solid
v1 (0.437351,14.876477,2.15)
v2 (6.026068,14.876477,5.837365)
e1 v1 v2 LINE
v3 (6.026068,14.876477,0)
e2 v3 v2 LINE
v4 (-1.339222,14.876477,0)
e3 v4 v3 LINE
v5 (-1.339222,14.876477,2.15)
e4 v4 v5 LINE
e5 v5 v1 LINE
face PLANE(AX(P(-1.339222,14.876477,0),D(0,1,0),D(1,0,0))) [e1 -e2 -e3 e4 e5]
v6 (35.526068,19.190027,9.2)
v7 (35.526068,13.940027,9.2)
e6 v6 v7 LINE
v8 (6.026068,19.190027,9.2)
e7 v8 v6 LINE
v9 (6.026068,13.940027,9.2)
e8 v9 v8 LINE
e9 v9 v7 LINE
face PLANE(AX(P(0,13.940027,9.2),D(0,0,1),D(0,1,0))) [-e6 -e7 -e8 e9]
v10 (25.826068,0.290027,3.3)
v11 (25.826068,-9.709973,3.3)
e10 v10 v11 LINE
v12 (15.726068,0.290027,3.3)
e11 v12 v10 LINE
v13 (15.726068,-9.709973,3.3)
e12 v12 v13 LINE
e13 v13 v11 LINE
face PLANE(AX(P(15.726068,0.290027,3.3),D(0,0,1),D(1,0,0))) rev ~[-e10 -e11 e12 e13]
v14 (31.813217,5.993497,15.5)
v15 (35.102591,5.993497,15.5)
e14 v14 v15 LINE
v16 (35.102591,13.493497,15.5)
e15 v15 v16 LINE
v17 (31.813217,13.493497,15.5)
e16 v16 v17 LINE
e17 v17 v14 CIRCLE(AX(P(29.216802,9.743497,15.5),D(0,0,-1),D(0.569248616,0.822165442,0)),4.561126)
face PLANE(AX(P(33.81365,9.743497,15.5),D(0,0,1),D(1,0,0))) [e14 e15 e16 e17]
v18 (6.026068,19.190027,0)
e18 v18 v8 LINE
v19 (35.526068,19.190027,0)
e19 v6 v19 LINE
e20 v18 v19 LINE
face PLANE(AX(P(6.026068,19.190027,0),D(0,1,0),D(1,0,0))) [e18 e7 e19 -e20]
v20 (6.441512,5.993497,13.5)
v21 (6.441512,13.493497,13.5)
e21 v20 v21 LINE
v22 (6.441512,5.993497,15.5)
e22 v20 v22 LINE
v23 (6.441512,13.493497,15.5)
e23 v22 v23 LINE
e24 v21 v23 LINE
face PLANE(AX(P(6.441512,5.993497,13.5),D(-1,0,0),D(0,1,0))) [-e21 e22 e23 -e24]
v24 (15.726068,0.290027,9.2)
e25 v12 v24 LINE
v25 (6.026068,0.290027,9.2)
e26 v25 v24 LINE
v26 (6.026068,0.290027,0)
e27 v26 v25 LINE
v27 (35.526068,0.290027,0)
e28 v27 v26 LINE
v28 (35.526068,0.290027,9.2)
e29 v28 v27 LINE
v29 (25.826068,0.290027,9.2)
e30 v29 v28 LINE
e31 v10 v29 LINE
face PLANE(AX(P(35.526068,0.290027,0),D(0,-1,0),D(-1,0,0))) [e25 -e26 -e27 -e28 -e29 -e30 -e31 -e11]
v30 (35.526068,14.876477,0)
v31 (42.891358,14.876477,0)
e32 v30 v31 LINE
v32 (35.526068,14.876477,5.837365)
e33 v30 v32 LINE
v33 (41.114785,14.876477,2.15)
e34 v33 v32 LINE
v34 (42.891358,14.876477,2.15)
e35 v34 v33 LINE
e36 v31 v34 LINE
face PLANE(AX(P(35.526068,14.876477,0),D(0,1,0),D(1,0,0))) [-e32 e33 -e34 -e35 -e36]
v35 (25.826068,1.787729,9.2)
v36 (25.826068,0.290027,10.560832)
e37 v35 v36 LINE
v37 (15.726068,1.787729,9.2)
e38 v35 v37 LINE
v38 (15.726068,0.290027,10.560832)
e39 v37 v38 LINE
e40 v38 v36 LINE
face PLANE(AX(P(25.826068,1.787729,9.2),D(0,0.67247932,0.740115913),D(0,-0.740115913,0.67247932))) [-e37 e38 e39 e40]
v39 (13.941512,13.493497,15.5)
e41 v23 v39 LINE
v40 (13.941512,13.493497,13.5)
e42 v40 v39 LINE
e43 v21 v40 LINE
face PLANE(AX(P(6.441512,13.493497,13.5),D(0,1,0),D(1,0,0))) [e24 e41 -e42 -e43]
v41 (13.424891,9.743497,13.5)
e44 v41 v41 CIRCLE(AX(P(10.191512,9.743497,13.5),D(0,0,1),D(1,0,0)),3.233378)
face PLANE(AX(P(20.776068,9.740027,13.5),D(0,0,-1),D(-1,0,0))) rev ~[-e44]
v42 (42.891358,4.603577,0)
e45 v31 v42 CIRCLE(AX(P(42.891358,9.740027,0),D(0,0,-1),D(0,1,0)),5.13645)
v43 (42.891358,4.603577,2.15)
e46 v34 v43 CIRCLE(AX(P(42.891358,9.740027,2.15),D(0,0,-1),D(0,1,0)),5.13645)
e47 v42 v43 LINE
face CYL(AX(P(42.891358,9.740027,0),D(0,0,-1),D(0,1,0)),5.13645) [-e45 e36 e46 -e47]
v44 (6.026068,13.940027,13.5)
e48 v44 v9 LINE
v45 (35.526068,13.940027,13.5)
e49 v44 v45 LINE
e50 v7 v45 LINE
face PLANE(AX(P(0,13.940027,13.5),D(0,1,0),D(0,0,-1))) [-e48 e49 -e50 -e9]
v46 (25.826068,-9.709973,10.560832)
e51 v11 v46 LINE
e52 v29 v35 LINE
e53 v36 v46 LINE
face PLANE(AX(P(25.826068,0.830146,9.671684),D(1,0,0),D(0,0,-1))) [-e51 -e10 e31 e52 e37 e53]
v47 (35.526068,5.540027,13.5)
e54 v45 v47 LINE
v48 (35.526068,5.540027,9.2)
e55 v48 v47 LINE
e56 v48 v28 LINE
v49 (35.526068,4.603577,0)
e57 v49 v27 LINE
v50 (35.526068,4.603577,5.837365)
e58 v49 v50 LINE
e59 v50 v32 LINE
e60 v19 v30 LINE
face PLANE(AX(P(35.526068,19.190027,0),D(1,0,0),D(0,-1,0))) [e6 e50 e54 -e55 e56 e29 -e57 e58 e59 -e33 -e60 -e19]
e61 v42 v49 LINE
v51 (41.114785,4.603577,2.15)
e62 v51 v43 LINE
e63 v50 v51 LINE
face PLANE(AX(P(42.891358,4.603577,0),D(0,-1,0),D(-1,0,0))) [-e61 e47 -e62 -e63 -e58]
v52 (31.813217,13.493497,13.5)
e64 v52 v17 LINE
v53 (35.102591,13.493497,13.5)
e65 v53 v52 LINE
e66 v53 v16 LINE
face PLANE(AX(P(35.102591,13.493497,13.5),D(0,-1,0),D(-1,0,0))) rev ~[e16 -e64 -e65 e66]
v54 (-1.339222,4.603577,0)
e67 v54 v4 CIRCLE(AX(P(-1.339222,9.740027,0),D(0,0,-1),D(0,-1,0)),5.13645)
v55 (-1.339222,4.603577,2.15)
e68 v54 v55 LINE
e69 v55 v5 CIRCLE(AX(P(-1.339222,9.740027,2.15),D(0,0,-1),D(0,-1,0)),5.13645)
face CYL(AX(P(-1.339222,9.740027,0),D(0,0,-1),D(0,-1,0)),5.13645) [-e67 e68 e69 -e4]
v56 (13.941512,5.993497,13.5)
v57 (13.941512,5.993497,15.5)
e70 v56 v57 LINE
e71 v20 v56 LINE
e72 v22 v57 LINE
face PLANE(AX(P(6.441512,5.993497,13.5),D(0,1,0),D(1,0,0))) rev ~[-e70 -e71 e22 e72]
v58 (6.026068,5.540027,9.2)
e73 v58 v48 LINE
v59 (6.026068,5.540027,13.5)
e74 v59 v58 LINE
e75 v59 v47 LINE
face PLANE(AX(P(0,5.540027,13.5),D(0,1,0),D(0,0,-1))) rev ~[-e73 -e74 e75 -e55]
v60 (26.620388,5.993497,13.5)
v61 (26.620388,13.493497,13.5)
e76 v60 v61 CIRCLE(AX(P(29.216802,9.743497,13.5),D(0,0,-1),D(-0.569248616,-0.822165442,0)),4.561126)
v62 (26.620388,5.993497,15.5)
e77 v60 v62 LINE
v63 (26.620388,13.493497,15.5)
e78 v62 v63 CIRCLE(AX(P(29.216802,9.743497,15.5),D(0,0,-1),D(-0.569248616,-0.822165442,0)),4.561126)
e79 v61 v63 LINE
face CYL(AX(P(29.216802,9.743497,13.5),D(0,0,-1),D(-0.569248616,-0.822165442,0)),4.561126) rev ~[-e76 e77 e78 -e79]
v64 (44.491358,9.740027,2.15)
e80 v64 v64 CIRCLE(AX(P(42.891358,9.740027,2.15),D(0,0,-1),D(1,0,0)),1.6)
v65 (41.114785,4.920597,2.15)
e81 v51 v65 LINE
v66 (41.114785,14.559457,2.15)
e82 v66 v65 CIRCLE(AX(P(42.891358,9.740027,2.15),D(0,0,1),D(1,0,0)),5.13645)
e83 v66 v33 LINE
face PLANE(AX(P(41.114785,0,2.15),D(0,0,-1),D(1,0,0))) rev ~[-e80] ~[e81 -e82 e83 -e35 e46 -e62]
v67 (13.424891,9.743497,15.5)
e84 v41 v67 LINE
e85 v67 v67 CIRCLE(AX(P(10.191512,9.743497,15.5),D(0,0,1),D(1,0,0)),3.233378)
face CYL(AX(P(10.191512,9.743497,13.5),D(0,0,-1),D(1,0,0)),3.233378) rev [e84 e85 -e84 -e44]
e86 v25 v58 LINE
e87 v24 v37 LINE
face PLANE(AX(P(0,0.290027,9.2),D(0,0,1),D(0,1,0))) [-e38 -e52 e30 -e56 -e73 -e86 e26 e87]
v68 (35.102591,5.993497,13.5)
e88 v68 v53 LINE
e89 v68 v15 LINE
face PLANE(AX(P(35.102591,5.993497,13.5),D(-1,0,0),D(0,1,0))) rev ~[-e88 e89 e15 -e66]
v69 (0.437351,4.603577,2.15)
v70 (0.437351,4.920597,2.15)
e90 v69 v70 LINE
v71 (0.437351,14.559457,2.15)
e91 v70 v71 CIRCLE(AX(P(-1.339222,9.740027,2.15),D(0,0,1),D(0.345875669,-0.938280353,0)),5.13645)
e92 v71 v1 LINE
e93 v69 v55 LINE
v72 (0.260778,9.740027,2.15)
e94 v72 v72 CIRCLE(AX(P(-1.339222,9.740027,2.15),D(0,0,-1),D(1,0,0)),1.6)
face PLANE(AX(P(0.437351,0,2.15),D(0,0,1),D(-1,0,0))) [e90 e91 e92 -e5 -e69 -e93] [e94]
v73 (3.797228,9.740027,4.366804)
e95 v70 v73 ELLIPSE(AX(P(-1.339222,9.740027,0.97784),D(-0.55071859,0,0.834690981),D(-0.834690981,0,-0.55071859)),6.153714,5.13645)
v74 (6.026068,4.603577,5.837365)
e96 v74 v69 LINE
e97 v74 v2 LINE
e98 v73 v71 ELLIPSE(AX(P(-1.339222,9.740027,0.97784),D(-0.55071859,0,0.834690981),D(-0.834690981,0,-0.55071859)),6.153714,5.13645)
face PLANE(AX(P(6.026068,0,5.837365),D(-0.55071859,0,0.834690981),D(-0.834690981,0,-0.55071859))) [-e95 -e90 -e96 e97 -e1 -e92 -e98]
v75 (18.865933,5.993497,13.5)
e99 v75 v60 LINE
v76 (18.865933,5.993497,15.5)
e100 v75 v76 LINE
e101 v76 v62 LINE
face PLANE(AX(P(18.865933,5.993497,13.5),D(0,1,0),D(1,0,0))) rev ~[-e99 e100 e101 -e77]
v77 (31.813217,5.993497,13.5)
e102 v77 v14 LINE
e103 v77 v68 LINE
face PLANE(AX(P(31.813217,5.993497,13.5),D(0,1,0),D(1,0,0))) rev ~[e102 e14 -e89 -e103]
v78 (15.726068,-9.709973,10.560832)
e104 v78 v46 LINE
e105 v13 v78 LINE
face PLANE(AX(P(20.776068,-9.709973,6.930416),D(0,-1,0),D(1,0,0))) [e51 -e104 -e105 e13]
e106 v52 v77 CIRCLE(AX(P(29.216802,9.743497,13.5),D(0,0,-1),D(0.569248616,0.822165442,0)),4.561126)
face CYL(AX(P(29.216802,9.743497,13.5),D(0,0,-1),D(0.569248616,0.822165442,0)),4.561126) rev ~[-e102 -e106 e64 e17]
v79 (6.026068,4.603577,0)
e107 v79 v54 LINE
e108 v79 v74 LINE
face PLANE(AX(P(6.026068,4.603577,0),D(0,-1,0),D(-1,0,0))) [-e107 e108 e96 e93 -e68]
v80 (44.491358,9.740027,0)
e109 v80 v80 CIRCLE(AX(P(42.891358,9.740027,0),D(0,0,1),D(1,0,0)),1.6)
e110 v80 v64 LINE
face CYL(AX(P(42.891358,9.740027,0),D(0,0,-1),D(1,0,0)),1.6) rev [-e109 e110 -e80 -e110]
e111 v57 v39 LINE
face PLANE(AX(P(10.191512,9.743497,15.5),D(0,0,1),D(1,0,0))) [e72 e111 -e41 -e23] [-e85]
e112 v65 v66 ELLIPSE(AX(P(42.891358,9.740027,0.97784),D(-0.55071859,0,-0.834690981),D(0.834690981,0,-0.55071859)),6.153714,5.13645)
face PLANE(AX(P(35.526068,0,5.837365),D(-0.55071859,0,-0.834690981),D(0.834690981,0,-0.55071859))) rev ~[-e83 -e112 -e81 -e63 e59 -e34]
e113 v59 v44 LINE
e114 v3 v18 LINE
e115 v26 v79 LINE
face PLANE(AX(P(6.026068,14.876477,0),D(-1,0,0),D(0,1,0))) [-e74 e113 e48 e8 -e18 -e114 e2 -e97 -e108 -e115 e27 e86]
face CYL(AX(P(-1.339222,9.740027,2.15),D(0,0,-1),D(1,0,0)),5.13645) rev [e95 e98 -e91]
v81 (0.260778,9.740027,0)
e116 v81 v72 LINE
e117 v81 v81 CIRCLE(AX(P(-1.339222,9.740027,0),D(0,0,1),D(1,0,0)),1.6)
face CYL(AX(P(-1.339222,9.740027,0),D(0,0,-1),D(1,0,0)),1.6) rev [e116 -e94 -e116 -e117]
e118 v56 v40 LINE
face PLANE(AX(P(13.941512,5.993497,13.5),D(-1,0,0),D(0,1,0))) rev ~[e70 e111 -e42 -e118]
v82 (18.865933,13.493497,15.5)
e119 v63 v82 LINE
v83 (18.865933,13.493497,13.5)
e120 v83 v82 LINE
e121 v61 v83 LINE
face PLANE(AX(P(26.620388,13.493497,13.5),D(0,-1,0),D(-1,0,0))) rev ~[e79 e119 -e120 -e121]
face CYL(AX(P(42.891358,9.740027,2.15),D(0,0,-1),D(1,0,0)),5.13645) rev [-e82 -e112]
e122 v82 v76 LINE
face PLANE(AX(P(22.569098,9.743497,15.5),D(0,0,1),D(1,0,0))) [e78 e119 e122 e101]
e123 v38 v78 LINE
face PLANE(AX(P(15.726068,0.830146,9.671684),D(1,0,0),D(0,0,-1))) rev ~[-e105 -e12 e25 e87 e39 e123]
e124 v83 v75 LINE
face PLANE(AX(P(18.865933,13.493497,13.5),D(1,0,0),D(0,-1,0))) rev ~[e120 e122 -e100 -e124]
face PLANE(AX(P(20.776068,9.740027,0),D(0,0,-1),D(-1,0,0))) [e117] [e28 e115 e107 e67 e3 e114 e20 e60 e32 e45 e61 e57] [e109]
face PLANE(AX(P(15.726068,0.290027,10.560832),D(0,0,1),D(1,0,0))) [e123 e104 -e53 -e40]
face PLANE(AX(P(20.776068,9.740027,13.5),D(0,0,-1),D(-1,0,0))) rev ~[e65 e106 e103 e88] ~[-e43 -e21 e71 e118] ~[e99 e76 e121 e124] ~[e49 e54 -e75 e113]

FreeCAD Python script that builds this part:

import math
import FreeCAD as App
import Part
import Sketcher
Q = App.Units.Quantity

doc = App.newDocument("Part")
params = doc.addObject("Spreadsheet::Sheet", "Params")
for row, (alias, value) in enumerate([
    ("sketch1_diameter", "3.2 mm"),
    ("sketch1_width", "29.5 mm"),
    ("pad1_length", "13.5 mm"),
    ("sketch2_height", "2.15 mm"),
    ("sketch3_height", "4.3 mm"),
    ("sketch3_width", "5.25 mm"),
    ("sketch4_width", "7.5 mm"),
    ("pad2_length", "2 mm"),
    ("pocket3_length", "7.05 mm"),
    ("sketch6_width", "10.1 mm"),
    ("pad3_length", "10 mm"),
    ("pad4_length", "10.1 mm"),
], start=1):
    params.set(f"A{row}", alias)
    params.set(f"B{row}", "=" + value)
    params.setAlias(f"B{row}", alias)

body = doc.addObject("PartDesign::Body", "Body")

# Sketch on XY plane
sketch1 = doc.addObject("Sketcher::SketchObject", "Sketch")
body.addObject(sketch1)
sketch1.AttachmentSupport = (doc.XY_Plane, [""])
sketch1.MapMode = "FlatFace"
sketch1.addGeometry(Part.LineSegment(App.Vector(35.526068, 19.190027, 0), App.Vector(6.026068, 19.190027, 0)), False)
sketch1.addGeometry(Part.LineSegment(App.Vector(6.026068, 19.190027, 0), App.Vector(6.026068, 14.876477, 0)), False)
sketch1.addGeometry(Part.LineSegment(App.Vector(6.026068, 14.876477, 0), App.Vector(-1.339222, 14.876477, 0)), False)
sketch1.addGeometry(Part.ArcOfCircle(Part.Circle(App.Vector(-1.339222, 9.740027, 0), App.Vector(0, 0, 1), 5.13645), math.radians(90), math.radians(270)), False)
sketch1.addGeometry(Part.LineSegment(App.Vector(-1.339222, 4.603577, 0), App.Vector(6.026068, 4.603577, 0)), False)
sketch1.addGeometry(Part.LineSegment(App.Vector(6.026068, 4.603577, 0), App.Vector(6.026068, 0.290027, 0)), False)
sketch1.addGeometry(Part.LineSegment(App.Vector(6.026068, 0.290027, 0), App.Vector(35.526068, 0.290027, 0)), False)
sketch1.addGeometry(Part.LineSegment(App.Vector(35.526068, 0.290027, 0), App.Vector(35.526068, 4.603577, 0)), False)
sketch1.addGeometry(Part.LineSegment(App.Vector(35.526068, 4.603577, 0), App.Vector(42.891358, 4.603577, 0)), False)
sketch1.addGeometry(Part.ArcOfCircle(Part.Circle(App.Vector(42.891358, 9.740027, 0), App.Vector(0, 0, 1), 5.13645), math.radians(-90), math.radians(90)), False)
sketch1.addGeometry(Part.LineSegment(App.Vector(42.891358, 14.876477, 0), App.Vector(35.526068, 14.876477, 0)), False)
sketch1.addGeometry(Part.LineSegment(App.Vector(35.526068, 14.876477, 0), App.Vector(35.526068, 19.190027, 0)), False)
sketch1.addGeometry(Part.Circle(App.Vector(42.891358, 9.740027, 0), App.Vector(0, 0, 1), 1.6), False)
sketch1.addGeometry(Part.Circle(App.Vector(-1.339222, 9.740027, 0), App.Vector(0, 0, 1), 1.6), False)
sketch1.addConstraint(Sketcher.Constraint("Coincident", 0, 2, 1, 1))
sketch1.addConstraint(Sketcher.Constraint("Coincident", 1, 2, 2, 1))
sketch1.addConstraint(Sketcher.Constraint("Tangent", 2, 2, 3, 1))
sketch1.addConstraint(Sketcher.Constraint("Tangent", 3, 2, 4, 1))
sketch1.addConstraint(Sketcher.Constraint("Coincident", 4, 2, 5, 1))
sketch1.addConstraint(Sketcher.Constraint("Coincident", 5, 2, 6, 1))
sketch1.addConstraint(Sketcher.Constraint("Coincident", 6, 2, 7, 1))
sketch1.addConstraint(Sketcher.Constraint("Coincident", 7, 2, 8, 1))
sketch1.addConstraint(Sketcher.Constraint("Tangent", 8, 2, 9, 1))
sketch1.addConstraint(Sketcher.Constraint("Tangent", 9, 2, 10, 1))
sketch1.addConstraint(Sketcher.Constraint("Coincident", 10, 2, 11, 1))
sketch1.addConstraint(Sketcher.Constraint("Coincident", 11, 2, 0, 1))
sketch1.addConstraint(Sketcher.Constraint("Horizontal", 0))
sketch1.addConstraint(Sketcher.Constraint("Vertical", 1))
sketch1.addConstraint(Sketcher.Constraint("Horizontal", 2))
sketch1.addConstraint(Sketcher.Constraint("Horizontal", 4))
sketch1.addConstraint(Sketcher.Constraint("Vertical", 5))
sketch1.addConstraint(Sketcher.Constraint("Horizontal", 6))
sketch1.addConstraint(Sketcher.Constraint("Vertical", 7))
sketch1.addConstraint(Sketcher.Constraint("Horizontal", 8))
sketch1.addConstraint(Sketcher.Constraint("Horizontal", 10))
sketch1.addConstraint(Sketcher.Constraint("Vertical", 11))
sketch1.addConstraint(Sketcher.Constraint("Coincident", 12, 3, 9, 3))
sketch1.addConstraint(Sketcher.Constraint("Coincident", 13, 3, 3, 3))
sketch1.addConstraint(Sketcher.Constraint("Equal", 3, 9))
sketch1.addConstraint(Sketcher.Constraint("Equal", 12, 13))
sketch1.addConstraint(Sketcher.Constraint("Horizontal", 3, 3, 9, 3))
sketch1.addConstraint(Sketcher.Constraint("Vertical", 1, 2, 4, 2))
sketch1.addConstraint(Sketcher.Constraint("Vertical", 7, 2, 10, 2))
sketch1.addConstraint(Sketcher.Constraint("Equal", 4, 8))
sketch1.addConstraint(Sketcher.Constraint("Equal", 1, 5))
sketch1.addConstraint(Sketcher.Constraint("Diameter", 12, Q("3.2 mm")))
sketch1.addConstraint(Sketcher.Constraint("DistanceX", 0, 2, 0, 1, Q("29.5 mm")))
sketch1.addConstraint(Sketcher.Constraint("Radius", 3, Q("5.13645 mm")))
sketch1.addConstraint(Sketcher.Constraint("DistanceY", 3, 3, 0, 2, Q("9.45 mm")))
sketch1.addConstraint(Sketcher.Constraint("DistanceX", 2, 2, 2, 1, Q("7.36529 mm")))
sketch1.addConstraint(Sketcher.Constraint("DistanceX", -1, 1, 9, 3, Q("42.891358 mm")))
sketch1.addConstraint(Sketcher.Constraint("DistanceY", -1, 1, 3, 3, Q("9.740027 mm")))
sketch1.setExpression("Constraints[31]", "Params.sketch1_diameter")
sketch1.setExpression("Constraints[32]", "Params.sketch1_width")
pad1 = doc.addObject("PartDesign::Pad", "Pad")
body.addObject(pad1)
pad1.Profile = sketch1
pad1.setExpression("Length", "Params.pad1_length")

# Sketch on XZ plane
sketch2 = doc.addObject("Sketcher::SketchObject", "Sketch001")
body.addObject(sketch2)
sketch2.AttachmentSupport = (doc.XZ_Plane, [""])
sketch2.MapMode = "FlatFace"
sketch2.addGeometry(Part.LineSegment(App.Vector(-6.475672, 2.15, 0), App.Vector(-6.475672, 0, 0)), False)
sketch2.addGeometry(Part.LineSegment(App.Vector(-6.475672, 0, 0), App.Vector(-10.044911, 0, 0)), False)
sketch2.addGeometry(Part.LineSegment(App.Vector(-10.044911, 0, 0), App.Vector(-10.044911, 17.049735, 0)), False)
sketch2.addGeometry(Part.LineSegment(App.Vector(-10.044911, 17.049735, 0), App.Vector(6.026068, 17.049735, 0)), False)
sketch2.addGeometry(Part.LineSegment(App.Vector(6.026068, 17.049735, 0), App.Vector(6.026068, 5.837365, 0)), False)
sketch2.addGeometry(Part.LineSegment(App.Vector(6.026068, 5.837365, 0), App.Vector(0.437351, 2.15, 0)), False)
sketch2.addGeometry(Part.LineSegment(App.Vector(0.437351, 2.15, 0), App.Vector(-6.475672, 2.15, 0)), False)
sketch2.addGeometry(Part.LineSegment(App.Vector(51.597047, 0, 0), App.Vector(48.027808, 0, 0)), False)
sketch2.addGeometry(Part.LineSegment(App.Vector(48.027808, 0, 0), App.Vector(48.027808, 2.15, 0)), False)
sketch2.addGeometry(Part.LineSegment(App.Vector(48.027808, 2.15, 0), App.Vector(41.114785, 2.15, 0)), False)
sketch2.addGeometry(Part.LineSegment(App.Vector(41.114785, 2.15, 0), App.Vector(35.526068, 5.837365, 0)), False)
sketch2.addGeometry(Part.LineSegment(App.Vector(35.526068, 5.837365, 0), App.Vector(35.526068, 17.049735, 0)), False)
sketch2.addGeometry(Part.LineSegment(App.Vector(35.526068, 17.049735, 0), App.Vector(51.597047, 17.049735, 0)), False)
sketch2.addGeometry(Part.LineSegment(App.Vector(51.597047, 17.049735, 0), App.Vector(51.597047, 0, 0)), False)
sketch2.addConstraint(Sketcher.Constraint("Coincident", 0, 2, 1, 1))
sketch2.addConstraint(Sketcher.Constraint("Coincident", 1, 2, 2, 1))
sketch2.addConstraint(Sketcher.Constraint("Coincident", 2, 2, 3, 1))
sketch2.addConstraint(Sketcher.Constraint("Coincident", 3, 2, 4, 1))
sketch2.addConstraint(Sketcher.Constraint("Coincident", 4, 2, 5, 1))
sketch2.addConstraint(Sketcher.Constraint("Coincident", 5, 2, 6, 1))
sketch2.addConstraint(Sketcher.Constraint("Coincident", 6, 2, 0, 1))
sketch2.addConstraint(Sketcher.Constraint("Coincident", 7, 2, 8, 1))
sketch2.addConstraint(Sketcher.Constraint("Coincident", 8, 2, 9, 1))
sketch2.addConstraint(Sketcher.Constraint("Coincident", 9, 2, 10, 1))
sketch2.addConstraint(Sketcher.Constraint("Coincident", 10, 2, 11, 1))
sketch2.addConstraint(Sketcher.Constraint("Coincident", 11, 2, 12, 1))
sketch2.addConstraint(Sketcher.Constraint("Coincident", 12, 2, 13, 1))
sketch2.addConstraint(Sketcher.Constraint("Coincident", 13, 2, 7, 1))
sketch2.addConstraint(Sketcher.Constraint("Vertical", 0))
sketch2.addConstraint(Sketcher.Constraint("Horizontal", 1))
sketch2.addConstraint(Sketcher.Constraint("Vertical", 2))
sketch2.addConstraint(Sketcher.Constraint("Horizontal", 3))
sketch2.addConstraint(Sketcher.Constraint("Vertical", 4))
sketch2.addConstraint(Sketcher.Constraint("Horizontal", 6))
sketch2.addConstraint(Sketcher.Constraint("Horizontal", 7))
sketch2.addConstraint(Sketcher.Constraint("Vertical", 8))
sketch2.addConstraint(Sketcher.Constraint("Horizontal", 9))
sketch2.addConstraint(Sketcher.Constraint("Vertical", 11))
sketch2.addConstraint(Sketcher.Constraint("Horizontal", 12))
sketch2.addConstraint(Sketcher.Constraint("Vertical", 13))
sketch2.addConstraint(Sketcher.Constraint("PointOnObject", 0, 2, -1))
sketch2.addConstraint(Sketcher.Constraint("PointOnObject", 7, 2, -1))
sketch2.addConstraint(Sketcher.Constraint("Horizontal", 6, 2, 8, 2))
sketch2.addConstraint(Sketcher.Constraint("Horizontal", 4, 2, 10, 2))
sketch2.addConstraint(Sketcher.Constraint("Horizontal", 3, 2, 11, 2))
sketch2.addConstraint(Sketcher.Constraint("Equal", 1, 7))
sketch2.addConstraint(Sketcher.Constraint("Equal", 6, 9))
sketch2.addConstraint(Sketcher.Constraint("Equal", 3, 12))
sketch2.addConstraint(Sketcher.Constraint("DistanceY", 0, 2, 0, 1, Q("2.15 mm")))
sketch2.addConstraint(Sketcher.Constraint("DistanceX", 4, 2, 10, 2, Q("29.5 mm")))
sketch2.addConstraint(Sketcher.Constraint("DistanceX", 1, 2, 1, 1, Q("3.569239 mm")))
sketch2.addConstraint(Sketcher.Constraint("DistanceX", 3, 1, 3, 2, Q("16.070979 mm")))
sketch2.addConstraint(Sketcher.Constraint("DistanceY", 4, 2, 4, 1, Q("11.21237 mm")))
sketch2.addConstraint(Sketcher.Constraint("DistanceX", 6, 2, 6, 1, Q("6.913023 mm")))
sketch2.addConstraint(Sketcher.Constraint("DistanceY", 2, 1, 2, 2, Q("17.049735 mm")))
sketch2.addConstraint(Sketcher.Constraint("DistanceX", 0, 2, -1, 1, Q("6.475672 mm")))
sketch2.setExpression("Constraints[34]", "Params.sketch2_height")
pocket1 = doc.addObject("PartDesign::Pocket", "Pocket")
body.addObject(pocket1)
pocket1.Profile = sketch2
pocket1.Type = "ThroughAll"

# Sketch on YZ plane
sketch3 = doc.addObject("Sketcher::SketchObject", "Sketch002")
body.addObject(sketch3)
sketch3.AttachmentSupport = (doc.YZ_Plane, [""])
sketch3.MapMode = "FlatFace"
sketch3.addGeometry(Part.LineSegment(App.Vector(19.190027, 13.5, 0), App.Vector(13.940027, 13.5, 0)), False)
sketch3.addGeometry(Part.LineSegment(App.Vector(13.940027, 13.5, 0), App.Vector(13.940027, 9.2, 0)), False)
sketch3.addGeometry(Part.LineSegment(App.Vector(13.940027, 9.2, 0), App.Vector(19.190027, 9.2, 0)), False)
sketch3.addGeometry(Part.LineSegment(App.Vector(19.190027, 9.2, 0), App.Vector(19.190027, 13.5, 0)), False)
sketch3.addGeometry(Part.LineSegment(App.Vector(5.540027, 13.5, 0), App.Vector(0.290027, 13.5, 0)), False)
sketch3.addGeometry(Part.LineSegment(App.Vector(0.290027, 13.5, 0), App.Vector(0.290027, 9.2, 0)), False)
sketch3.addGeometry(Part.LineSegment(App.Vector(0.290027, 9.2, 0), App.Vector(5.540027, 9.2, 0)), False)
sketch3.addGeometry(Part.LineSegment(App.Vector(5.540027, 9.2, 0), App.Vector(5.540027, 13.5, 0)), False)
sketch3.addConstraint(Sketcher.Constraint("Coincident", 0, 2, 1, 1))
sketch3.addConstraint(Sketcher.Constraint("Coincident", 1, 2, 2, 1))
sketch3.addConstraint(Sketcher.Constraint("Coincident", 2, 2, 3, 1))
sketch3.addConstraint(Sketcher.Constraint("Coincident", 3, 2, 0, 1))
sketch3.addConstraint(Sketcher.Constraint("Coincident", 4, 2, 5, 1))
sketch3.addConstraint(Sketcher.Constraint("Coincident", 5, 2, 6, 1))
sketch3.addConstraint(Sketcher.Constraint("Coincident", 6, 2, 7, 1))
sketch3.addConstraint(Sketcher.Constraint("Coincident", 7, 2, 4, 1))
sketch3.addConstraint(Sketcher.Constraint("Horizontal", 0))
sketch3.addConstraint(Sketcher.Constraint("Vertical", 1))
sketch3.addConstraint(Sketcher.Constraint("Horizontal", 2))
sketch3.addConstraint(Sketcher.Constraint("Vertical", 3))
sketch3.addConstraint(Sketcher.Constraint("Horizontal", 4))
sketch3.addConstraint(Sketcher.Constraint("Vertical", 5))
sketch3.addConstraint(Sketcher.Constraint("Horizontal", 6))
sketch3.addConstraint(Sketcher.Constraint("Vertical", 7))
sketch3.addConstraint(Sketcher.Constraint("Horizontal", 3, 2, 4, 2))
sketch3.addConstraint(Sketcher.Constraint("Horizontal", 2, 2, 5, 2))
sketch3.addConstraint(Sketcher.Constraint("Equal", 2, 4))
sketch3.addConstraint(Sketcher.Constraint("DistanceY", 1, 2, 1, 1, Q("4.3 mm")))
sketch3.addConstraint(Sketcher.Constraint("DistanceX", 0, 2, 0, 1, Q("5.25 mm")))
sketch3.addConstraint(Sketcher.Constraint("DistanceY", -1, 1, 0, 2, Q("13.5 mm")))
sketch3.addConstraint(Sketcher.Constraint("DistanceX", 4, 2, 3, 2, Q("18.9 mm")))
sketch3.addConstraint(Sketcher.Constraint("DistanceX", -1, 1, 0, 2, Q("13.940027 mm")))
sketch3.setExpression("Constraints[19]", "Params.sketch3_height")
sketch3.setExpression("Constraints[20]", "Params.sketch3_width")
pocket2 = doc.addObject("PartDesign::Pocket", "Pocket001")
body.addObject(pocket2)
pocket2.Profile = sketch3
pocket2.Type = "ThroughAll"
pocket2.Reversed = True

# Sketch on XY plane
sketch4 = doc.addObject("Sketcher::SketchObject", "Sketch003")
body.addObject(sketch4)
sketch4.AttachmentSupport = (doc.XY_Plane, [""])
sketch4.MapMode = "FlatFace"
sketch4.AttachmentOffset = App.Placement(App.Vector(0, 0, 13.5), App.Rotation())
sketch4.addGeometry(Part.LineSegment(App.Vector(6.441512, 13.493497, 0), App.Vector(6.441512, 5.993497, 0)), False)
sketch4.addGeometry(Part.LineSegment(App.Vector(6.441512, 5.993497, 0), App.Vector(13.941512, 5.993497, 0)), False)
sketch4.addGeometry(Part.LineSegment(App.Vector(13.941512, 5.993497, 0), App.Vector(13.941512, 13.493497, 0)), False)
sketch4.addGeometry(Part.LineSegment(App.Vector(13.941512, 13.493497, 0), App.Vector(6.441512, 13.493497, 0)), False)
sketch4.addGeometry(Part.Circle(App.Vector(10.191512, 9.743497, 0), App.Vector(0, 0, 1), 3.233378), False)
sketch4.addGeometry(Part.LineSegment(App.Vector(35.102591, 13.493497, 0), App.Vector(31.813217, 13.493497, 0)), False)
sketch4.addGeometry(Part.ArcOfCircle(Part.Circle(App.Vector(29.216802, 9.743497, 0), App.Vector(0, 0, 1), 4.561126), math.radians(-55.302154), math.radians(55.302154)), False)
sketch4.addGeometry(Part.LineSegment(App.Vector(31.813217, 5.993497, 0), App.Vector(35.102591, 5.993497, 0)), False)
sketch4.addGeometry(Part.LineSegment(App.Vector(35.102591, 5.993497, 0), App.Vector(35.102591, 13.493497, 0)), False)
sketch4.addGeometry(Part.LineSegment(App.Vector(18.865933, 13.493497, 0), App.Vector(18.865933, 5.993497, 0)), False)
sketch4.addGeometry(Part.LineSegment(App.Vector(18.865933, 5.993497, 0), App.Vector(26.620388, 5.993497, 0)), False)
sketch4.addGeometry(Part.ArcOfCircle(Part.Circle(App.Vector(29.216802, 9.743497, 0), App.Vector(0, 0, 1), 4.561126), math.radians(124.697846), math.radians(235.302154)), False)
sketch4.addGeometry(Part.LineSegment(App.Vector(26.620388, 13.493497, 0), App.Vector(18.865933, 13.493497, 0)), False)
sketch4.addConstraint(Sketcher.Constraint("Coincident", 0, 2, 1, 1))
sketch4.addConstraint(Sketcher.Constraint("Coincident", 1, 2, 2, 1))
sketch4.addConstraint(Sketcher.Constraint("Coincident", 2, 2, 3, 1))
sketch4.addConstraint(Sketcher.Constraint("Coincident", 3, 2, 0, 1))
sketch4.addConstraint(Sketcher.Constraint("Coincident", 5, 2, 6, 2))
sketch4.addConstraint(Sketcher.Constraint("Coincident", 6, 1, 7, 1))
sketch4.addConstraint(Sketcher.Constraint("Coincident", 7, 2, 8, 1))
sketch4.addConstraint(Sketcher.Constraint("Coincident", 8, 2, 5, 1))
sketch4.addConstraint(Sketcher.Constraint("Coincident", 9, 2, 10, 1))
sketch4.addConstraint(Sketcher.Constraint("Coincident", 10, 2, 11, 2))
sketch4.addConstraint(Sketcher.Constraint("Coincident", 11, 1, 12, 1))
sketch4.addConstraint(Sketcher.Constraint("Coincident", 12, 2, 9, 1))
sketch4.addConstraint(Sketcher.Constraint("Vertical", 0))
sketch4.addConstraint(Sketcher.Constraint("Horizontal", 1))
sketch4.addConstraint(Sketcher.Constraint("Vertical", 2))
sketch4.addConstraint(Sketcher.Constraint("Horizontal", 3))
sketch4.addConstraint(Sketcher.Constraint("Horizontal", 5))
sketch4.addConstraint(Sketcher.Constraint("Horizontal", 7))
sketch4.addConstraint(Sketcher.Constraint("Vertical", 8))
sketch4.addConstraint(Sketcher.Constraint("Vertical", 9))
sketch4.addConstraint(Sketcher.Constraint("Horizontal", 10))
sketch4.addConstraint(Sketcher.Constraint("Horizontal", 12))
sketch4.addConstraint(Sketcher.Constraint("Coincident", 11, 3, 6, 3))
sketch4.addConstraint(Sketcher.Constraint("Equal", 6, 11))
sketch4.addConstraint(Sketcher.Constraint("Horizontal", 4, 3, 6, 3))
sketch4.addConstraint(Sketcher.Constraint("Horizontal", 3, 2, 5, 2))
sketch4.addConstraint(Sketcher.Constraint("Horizontal", 1, 2, 6, 1))
sketch4.addConstraint(Sketcher.Constraint("Horizontal", 7, 2, 9, 2))
sketch4.addConstraint(Sketcher.Constraint("Horizontal", 8, 2, 11, 1))
sketch4.addConstraint(Sketcher.Constraint("Vertical", 5, 2, 6, 1))
sketch4.addConstraint(Sketcher.Constraint("Equal", 3, 0))
sketch4.addConstraint(Sketcher.Constraint("DistanceX", 1, 1, 1, 2, Q("7.5 mm")))
sketch4.addConstraint(Sketcher.Constraint("DistanceX", 0, 2, 4, 3, Q("3.75 mm")))
sketch4.addConstraint(Sketcher.Constraint("Diameter", 4, Q("6.466757 mm")))
sketch4.addConstraint(Sketcher.Constraint("Radius", 6, Q("4.561126 mm")))
sketch4.addConstraint(Sketcher.Constraint("DistanceX", 5, 2, 5, 1, Q("3.289374 mm")))
sketch4.addConstraint(Sketcher.Constraint("DistanceX", 10, 1, 10, 2, Q("7.754455 mm")))
sketch4.addConstraint(Sketcher.Constraint("DistanceX", -1, 1, 7, 2, Q("35.102591 mm")))
sketch4.addConstraint(Sketcher.Constraint("DistanceX", 4, 3, 6, 3, Q("19.02529 mm")))
sketch4.addConstraint(Sketcher.Constraint("DistanceY", -1, 1, 4, 3, Q("9.743497 mm")))
sketch4.setExpression("Constraints[31]", "Params.sketch4_width")
pad2 = doc.addObject("PartDesign::Pad", "Pad001")
body.addObject(pad2)
pad2.Profile = sketch4
pad2.setExpression("Length", "Params.pad2_length")

# Sketch on XY plane
sketch5 = doc.addObject("Sketcher::SketchObject", "Sketch004")
body.addObject(sketch5)
sketch5.AttachmentSupport = (doc.XY_Plane, [""])
sketch5.MapMode = "FlatFace"
sketch5.AttachmentOffset = App.Placement(App.Vector(0, 0, 2.15), App.Rotation())
sketch5.addGeometry(Part.Circle(App.Vector(-1.339222, 9.740027, 0), App.Vector(0, 0, 1), 5.13645), False)
sketch5.addGeometry(Part.Circle(App.Vector(42.891358, 9.740027, 0), App.Vector(0, 0, 1), 5.13645), False)
sketch5.addConstraint(Sketcher.Constraint("Equal", 0, 1))
sketch5.addConstraint(Sketcher.Constraint("Horizontal", 0, 3, 1, 3))
sketch5.addConstraint(Sketcher.Constraint("Diameter", 0, Q("10.272899 mm")))
sketch5.addConstraint(Sketcher.Constraint("DistanceX", -1, 1, 1, 3, Q("42.891358 mm")))
sketch5.addConstraint(Sketcher.Constraint("DistanceX", 0, 3, 1, 3, Q("44.230581 mm")))
sketch5.addConstraint(Sketcher.Constraint("DistanceY", -1, 1, 0, 3, Q("9.740027 mm")))
pocket3 = doc.addObject("PartDesign::Pocket", "Pocket002")
body.addObject(pocket3)
pocket3.Profile = sketch5
pocket3.setExpression("Length", "Params.pocket3_length")
pocket3.Reversed = True

# Sketch on XZ plane
sketch6 = doc.addObject("Sketcher::SketchObject", "Sketch005")
body.addObject(sketch6)
sketch6.AttachmentSupport = (doc.XZ_Plane, [""])
sketch6.MapMode = "FlatFace"
sketch6.AttachmentOffset = App.Placement(App.Vector(0, 0, -0.290027), App.Rotation())
sketch6.addGeometry(Part.LineSegment(App.Vector(15.726068, 10.560832, 0), App.Vector(15.726068, 3.3, 0)), False)
sketch6.addGeometry(Part.LineSegment(App.Vector(15.726068, 3.3, 0), App.Vector(25.826068, 3.3, 0)), False)
sketch6.addGeometry(Part.LineSegment(App.Vector(25.826068, 3.3, 0), App.Vector(25.826068, 10.560832, 0)), False)
sketch6.addGeometry(Part.LineSegment(App.Vector(25.826068, 10.560832, 0), App.Vector(15.726068, 10.560832, 0)), False)
sketch6.addConstraint(Sketcher.Constraint("Coincident", 0, 2, 1, 1))
sketch6.addConstraint(Sketcher.Constraint("Coincident", 1, 2, 2, 1))
sketch6.addConstraint(Sketcher.Constraint("Coincident", 2, 2, 3, 1))
sketch6.addConstraint(Sketcher.Constraint("Coincident", 3, 2, 0, 1))
sketch6.addConstraint(Sketcher.Constraint("Vertical", 0))
sketch6.addConstraint(Sketcher.Constraint("Horizontal", 1))
sketch6.addConstraint(Sketcher.Constraint("Vertical", 2))
sketch6.addConstraint(Sketcher.Constraint("Horizontal", 3))
sketch6.addConstraint(Sketcher.Constraint("DistanceX", 1, 1, 1, 2, Q("10.1 mm")))
sketch6.addConstraint(Sketcher.Constraint("DistanceY", -1, 1, 0, 2, Q("3.3 mm")))
sketch6.addConstraint(Sketcher.Constraint("DistanceY", 0, 2, 0, 1, Q("7.260832 mm")))
sketch6.addConstraint(Sketcher.Constraint("DistanceX", -1, 1, 0, 2, Q("15.726068 mm")))
sketch6.setExpression("Constraints[8]", "Params.sketch6_width")
pad3 = doc.addObject("PartDesign::Pad", "Pad002")
body.addObject(pad3)
pad3.Profile = sketch6
pad3.setExpression("Length", "Params.pad3_length")

# Sketch on YZ plane
sketch7 = doc.addObject("Sketcher::SketchObject", "Sketch006")
body.addObject(sketch7)
sketch7.AttachmentSupport = (doc.YZ_Plane, [""])
sketch7.MapMode = "FlatFace"
sketch7.AttachmentOffset = App.Placement(App.Vector(0, 0, 25.826068), App.Rotation())
sketch7.addGeometry(Part.LineSegment(App.Vector(0.290027, 10.560832, 0), App.Vector(0.290027, 9.2, 0)), False)
sketch7.addGeometry(Part.LineSegment(App.Vector(0.290027, 9.2, 0), App.Vector(1.787729, 9.2, 0)), False)
sketch7.addGeometry(Part.LineSegment(App.Vector(1.787729, 9.2, 0), App.Vector(0.290027, 10.560832, 0)), False)
sketch7.addConstraint(Sketcher.Constraint("Coincident", 0, 2, 1, 1))
sketch7.addConstraint(Sketcher.Constraint("Coincident", 1, 2, 2, 1))
sketch7.addConstraint(Sketcher.Constraint("Coincident", 2, 2, 0, 1))
sketch7.addConstraint(Sketcher.Constraint("Vertical", 0))
sketch7.addConstraint(Sketcher.Constraint("Horizontal", 1))
sketch7.addConstraint(Sketcher.Constraint("DistanceY", -1, 1, 0, 2, Q("9.2 mm")))
sketch7.addConstraint(Sketcher.Constraint("DistanceX", 1, 1, 1, 2, Q("1.497701 mm")))
sketch7.addConstraint(Sketcher.Constraint("DistanceY", 0, 2, 0, 1, Q("1.360832 mm")))
sketch7.addConstraint(Sketcher.Constraint("DistanceX", -1, 1, 1, 2, Q("1.787729 mm")))
pad4 = doc.addObject("PartDesign::Pad", "Pad003")
body.addObject(pad4)
pad4.Profile = sketch7
pad4.setExpression("Length", "Params.pad4_length")
pad4.Reversed = True

doc.recompute()
